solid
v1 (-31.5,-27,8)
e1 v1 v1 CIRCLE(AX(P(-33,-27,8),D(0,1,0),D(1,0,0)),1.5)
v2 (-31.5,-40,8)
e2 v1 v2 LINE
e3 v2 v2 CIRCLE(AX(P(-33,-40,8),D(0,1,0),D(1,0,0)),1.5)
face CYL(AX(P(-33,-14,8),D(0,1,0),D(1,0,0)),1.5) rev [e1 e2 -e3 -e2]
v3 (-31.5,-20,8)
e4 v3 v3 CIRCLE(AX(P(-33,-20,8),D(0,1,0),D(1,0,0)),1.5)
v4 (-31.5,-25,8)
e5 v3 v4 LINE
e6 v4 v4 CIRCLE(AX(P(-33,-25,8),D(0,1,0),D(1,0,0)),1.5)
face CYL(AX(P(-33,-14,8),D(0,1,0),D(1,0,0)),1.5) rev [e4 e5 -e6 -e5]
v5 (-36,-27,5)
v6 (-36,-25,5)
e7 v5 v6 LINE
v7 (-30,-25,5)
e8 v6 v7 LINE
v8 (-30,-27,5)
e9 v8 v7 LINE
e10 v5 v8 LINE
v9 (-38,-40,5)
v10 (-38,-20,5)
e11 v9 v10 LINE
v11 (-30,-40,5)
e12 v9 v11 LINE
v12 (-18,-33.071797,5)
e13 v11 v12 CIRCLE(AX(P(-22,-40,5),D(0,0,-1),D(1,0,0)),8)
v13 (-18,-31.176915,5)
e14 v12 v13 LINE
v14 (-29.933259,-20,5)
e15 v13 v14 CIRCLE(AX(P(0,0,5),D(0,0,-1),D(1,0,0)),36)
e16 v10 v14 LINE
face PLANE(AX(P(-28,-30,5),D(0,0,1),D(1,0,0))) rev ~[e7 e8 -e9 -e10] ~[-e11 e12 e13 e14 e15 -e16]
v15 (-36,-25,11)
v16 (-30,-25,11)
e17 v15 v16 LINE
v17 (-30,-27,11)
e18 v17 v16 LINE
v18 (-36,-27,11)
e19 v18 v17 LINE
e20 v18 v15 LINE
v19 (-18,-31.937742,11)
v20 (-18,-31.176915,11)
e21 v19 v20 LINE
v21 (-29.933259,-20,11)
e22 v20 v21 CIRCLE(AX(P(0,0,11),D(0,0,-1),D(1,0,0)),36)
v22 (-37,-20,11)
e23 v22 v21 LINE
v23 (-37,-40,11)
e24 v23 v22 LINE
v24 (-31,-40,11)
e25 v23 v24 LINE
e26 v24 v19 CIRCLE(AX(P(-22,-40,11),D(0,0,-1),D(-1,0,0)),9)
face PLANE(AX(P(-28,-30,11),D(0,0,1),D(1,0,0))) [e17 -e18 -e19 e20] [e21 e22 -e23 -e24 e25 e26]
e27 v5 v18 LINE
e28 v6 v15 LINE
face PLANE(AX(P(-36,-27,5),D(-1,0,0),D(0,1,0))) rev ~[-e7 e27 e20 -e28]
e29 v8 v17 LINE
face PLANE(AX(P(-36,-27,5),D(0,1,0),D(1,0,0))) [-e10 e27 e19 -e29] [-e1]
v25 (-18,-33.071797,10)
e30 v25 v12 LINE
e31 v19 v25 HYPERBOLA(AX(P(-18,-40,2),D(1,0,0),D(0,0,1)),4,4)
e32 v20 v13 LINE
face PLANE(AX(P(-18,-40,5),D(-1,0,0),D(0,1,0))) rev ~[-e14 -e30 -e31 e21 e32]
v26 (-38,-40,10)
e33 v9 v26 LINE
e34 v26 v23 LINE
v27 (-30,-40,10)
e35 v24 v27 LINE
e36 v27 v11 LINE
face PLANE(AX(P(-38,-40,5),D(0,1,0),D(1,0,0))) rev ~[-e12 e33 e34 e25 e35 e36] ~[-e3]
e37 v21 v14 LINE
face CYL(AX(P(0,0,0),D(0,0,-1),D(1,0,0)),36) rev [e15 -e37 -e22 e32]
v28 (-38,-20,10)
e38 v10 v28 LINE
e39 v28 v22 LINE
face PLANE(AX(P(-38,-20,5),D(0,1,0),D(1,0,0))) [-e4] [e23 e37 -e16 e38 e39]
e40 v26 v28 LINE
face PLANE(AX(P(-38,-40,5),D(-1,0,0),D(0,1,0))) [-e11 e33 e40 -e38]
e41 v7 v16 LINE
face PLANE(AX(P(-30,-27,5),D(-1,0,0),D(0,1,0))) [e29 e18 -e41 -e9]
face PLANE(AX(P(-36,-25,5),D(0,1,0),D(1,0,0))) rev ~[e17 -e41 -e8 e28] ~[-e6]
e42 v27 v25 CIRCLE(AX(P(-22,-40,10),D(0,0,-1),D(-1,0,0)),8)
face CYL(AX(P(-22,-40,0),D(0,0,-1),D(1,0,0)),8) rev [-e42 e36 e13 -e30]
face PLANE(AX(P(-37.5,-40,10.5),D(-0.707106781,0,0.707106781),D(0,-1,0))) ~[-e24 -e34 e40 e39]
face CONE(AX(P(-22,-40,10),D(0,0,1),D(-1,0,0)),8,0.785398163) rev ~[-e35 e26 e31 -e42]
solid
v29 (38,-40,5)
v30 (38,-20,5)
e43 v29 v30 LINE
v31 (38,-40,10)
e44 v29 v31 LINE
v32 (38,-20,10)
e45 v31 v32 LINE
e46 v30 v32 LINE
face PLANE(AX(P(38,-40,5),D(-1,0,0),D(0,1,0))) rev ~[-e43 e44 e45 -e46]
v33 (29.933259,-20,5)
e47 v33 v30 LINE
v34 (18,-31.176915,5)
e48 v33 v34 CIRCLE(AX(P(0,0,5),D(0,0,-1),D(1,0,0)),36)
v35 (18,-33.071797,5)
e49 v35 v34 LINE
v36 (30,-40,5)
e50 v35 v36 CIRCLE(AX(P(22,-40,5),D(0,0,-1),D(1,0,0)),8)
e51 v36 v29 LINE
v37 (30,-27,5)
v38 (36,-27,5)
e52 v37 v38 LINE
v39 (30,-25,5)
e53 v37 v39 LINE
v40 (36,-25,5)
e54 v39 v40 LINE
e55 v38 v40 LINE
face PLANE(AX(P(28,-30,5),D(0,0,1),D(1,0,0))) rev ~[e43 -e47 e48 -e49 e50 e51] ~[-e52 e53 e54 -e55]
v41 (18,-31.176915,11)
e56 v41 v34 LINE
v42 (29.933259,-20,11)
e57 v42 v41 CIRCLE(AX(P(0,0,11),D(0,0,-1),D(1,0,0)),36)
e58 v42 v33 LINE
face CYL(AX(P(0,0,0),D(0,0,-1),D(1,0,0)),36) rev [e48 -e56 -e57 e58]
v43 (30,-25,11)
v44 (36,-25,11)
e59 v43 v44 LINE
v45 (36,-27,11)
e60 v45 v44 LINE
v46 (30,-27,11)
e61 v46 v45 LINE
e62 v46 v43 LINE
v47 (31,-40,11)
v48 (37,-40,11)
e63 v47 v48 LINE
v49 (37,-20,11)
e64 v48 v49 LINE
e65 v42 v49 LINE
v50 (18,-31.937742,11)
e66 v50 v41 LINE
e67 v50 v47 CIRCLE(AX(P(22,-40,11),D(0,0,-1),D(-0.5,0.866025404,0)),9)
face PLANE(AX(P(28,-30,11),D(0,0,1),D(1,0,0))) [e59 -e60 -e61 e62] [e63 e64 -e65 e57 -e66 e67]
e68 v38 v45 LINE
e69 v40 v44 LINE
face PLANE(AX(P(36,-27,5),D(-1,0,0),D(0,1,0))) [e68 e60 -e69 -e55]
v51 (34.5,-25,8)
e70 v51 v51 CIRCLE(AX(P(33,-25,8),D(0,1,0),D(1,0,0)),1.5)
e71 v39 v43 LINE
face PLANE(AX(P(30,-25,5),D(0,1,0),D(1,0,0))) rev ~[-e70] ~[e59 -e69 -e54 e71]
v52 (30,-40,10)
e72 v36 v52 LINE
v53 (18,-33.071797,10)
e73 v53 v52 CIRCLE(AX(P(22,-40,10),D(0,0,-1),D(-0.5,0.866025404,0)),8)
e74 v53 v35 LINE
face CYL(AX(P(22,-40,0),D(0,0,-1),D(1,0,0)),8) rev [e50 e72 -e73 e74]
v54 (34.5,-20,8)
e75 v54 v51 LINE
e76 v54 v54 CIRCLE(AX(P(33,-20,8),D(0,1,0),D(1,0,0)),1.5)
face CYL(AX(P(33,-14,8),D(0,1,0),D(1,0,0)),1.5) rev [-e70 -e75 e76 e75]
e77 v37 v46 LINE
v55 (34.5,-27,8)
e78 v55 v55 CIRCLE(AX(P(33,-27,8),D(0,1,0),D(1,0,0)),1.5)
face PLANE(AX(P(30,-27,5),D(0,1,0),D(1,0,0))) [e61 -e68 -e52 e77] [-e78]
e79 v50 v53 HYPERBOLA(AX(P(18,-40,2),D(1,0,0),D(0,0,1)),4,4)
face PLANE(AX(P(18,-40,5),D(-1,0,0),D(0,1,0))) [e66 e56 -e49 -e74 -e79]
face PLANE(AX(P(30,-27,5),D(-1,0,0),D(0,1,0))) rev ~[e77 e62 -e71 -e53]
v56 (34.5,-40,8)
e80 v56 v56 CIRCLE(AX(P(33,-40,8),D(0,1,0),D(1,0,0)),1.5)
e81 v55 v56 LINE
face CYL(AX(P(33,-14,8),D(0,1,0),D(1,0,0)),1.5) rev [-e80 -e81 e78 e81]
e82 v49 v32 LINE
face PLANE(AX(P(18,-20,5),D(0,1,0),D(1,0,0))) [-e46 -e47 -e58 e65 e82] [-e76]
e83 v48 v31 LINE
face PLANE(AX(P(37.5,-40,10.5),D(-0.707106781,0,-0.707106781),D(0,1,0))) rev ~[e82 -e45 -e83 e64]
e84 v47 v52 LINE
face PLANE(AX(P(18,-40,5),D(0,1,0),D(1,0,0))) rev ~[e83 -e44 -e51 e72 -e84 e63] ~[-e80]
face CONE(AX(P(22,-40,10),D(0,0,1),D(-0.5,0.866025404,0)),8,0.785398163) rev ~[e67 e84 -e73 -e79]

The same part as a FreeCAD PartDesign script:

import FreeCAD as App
import Part
import Sketcher


def edges_at(feature, points):
    """Names of the edges that pass closest to the given points."""
    edges = feature.Shape.Edges
    near = lambda p: min(range(len(edges)), key=lambda i: edges[i].distToShape(Part.Vertex(*p))[0])
    return sorted({f"Edge{near(p) + 1}" for p in points})

doc = App.newDocument("Part")
params = doc.addObject("Spreadsheet::Sheet", "Params")
for row, (alias, value) in enumerate([
    ("sketch1_diameter", "3 mm"),
    ("pad1_length", "60 mm"),
    ("sketch2_diameter", "3 mm"),
    ("pad2_length", "60 mm"),
    ("sketch3_width", "6 mm"),
    ("sketch3_height", "2 mm"),
    ("pad3_length", "6 mm"),
    ("sketch4_width", "6 mm"),
    ("sketch4_height", "2 mm"),
    ("pad4_length", "6 mm"),
    ("sketch5_diameter", "72 mm"),
    ("pad5_length", "16 mm"),
    ("sketch6_diameter", "16 mm"),
    ("pad6_length", "16 mm"),
    ("sketch7_diameter", "16 mm"),
    ("pad7_length", "16 mm"),
    ("sketch8_width", "20 mm"),
    ("pad8_length", "6 mm"),
    ("sketch9_width", "20 mm"),
    ("pad9_length", "6 mm"),
    ("chamfer_size", "1 mm"),
    ("chamfer2_size", "1 mm"),
    ("chamfer3_size", "1 mm"),
    ("chamfer4_size", "1 mm"),
], start=1):
    params.set(f"A{row}", alias)
    params.set(f"B{row}", "=" + value)
    params.setAlias(f"B{row}", alias)

body = doc.addObject("PartDesign::Body", "Body")

# Sketch on XZ plane
sketch1 = body.newObject("Sketcher::SketchObject", "Sketch")
sketch1.AttachmentSupport = (doc.getObject("XZ_Plane"), [""])
sketch1.MapMode = "FlatFace"
sketch1.AttachmentOffset = App.Placement(App.Vector(0, 0, 10), App.Rotation())
sketch1.addGeometry(Part.Circle(App.Vector(33, 8, 0), App.Vector(0, 0, 1), 1.5), False)
sketch1.addConstraint([
    Sketcher.Constraint("Diameter", 0, 3.0),
    Sketcher.Constraint("DistanceX", -1, 1, 0, 3, 33.0),
    Sketcher.Constraint("DistanceY", -1, 1, 0, 3, 8.0),
])
sketch1.setExpression("Constraints[0]", "Params.sketch1_diameter")
pad1 = body.newObject("PartDesign::Pad", "Pad")
pad1.Profile = sketch1
pad1.setExpression("Length", "Params.pad1_length")
body2 = doc.addObject("PartDesign::Body", "Body001")
body2.AllowCompound = True

# Sketch on XZ plane
sketch2 = body2.newObject("Sketcher::SketchObject", "Sketch001")
sketch2.AttachmentSupport = (doc.getObject("XZ_Plane001"), [""])
sketch2.MapMode = "FlatFace"
sketch2.AttachmentOffset = App.Placement(App.Vector(0, 0, 10), App.Rotation())
sketch2.addGeometry(Part.Circle(App.Vector(-33, 8, 0), App.Vector(0, 0, 1), 1.5), False)
sketch2.addConstraint([
    Sketcher.Constraint("Diameter", 0, 3.0),
    Sketcher.Constraint("DistanceX", 0, 3, -1, 1, 33.0),
    Sketcher.Constraint("DistanceY", -1, 1, 0, 3, 8.0),
])
sketch2.setExpression("Constraints[0]", "Params.sketch2_diameter")
pad2 = body2.newObject("PartDesign::Pad", "Pad001")
pad2.Profile = sketch2
pad2.setExpression("Length", "Params.pad2_length")
doc.recompute()

boolean = body2.newObject("PartDesign::Boolean", "Boolean")
boolean.Type = "Fuse"
boolean.addObjects([body])
body3 = doc.addObject("PartDesign::Body", "Body002")
body3.AllowCompound = True
doc.recompute()

body2.Placement = App.Placement(App.Vector(0, -4, 0), App.Rotation(App.Vector(0, 0, 1), 0))
boolean2 = body3.newObject("PartDesign::Boolean", "Boolean001")
boolean2.Type = "Fuse"
boolean2.addObjects([body2])
body4 = doc.addObject("PartDesign::Body", "Body003")

# Sketch on XY plane
sketch3 = body4.newObject("Sketcher::SketchObject", "Sketch002")
sketch3.AttachmentSupport = (doc.getObject("XY_Plane003"), [""])
sketch3.MapMode = "FlatFace"
sketch3.AttachmentOffset = App.Placement(App.Vector(0, 0, 5), App.Rotation())
sketch3.addGeometry([
    Part.LineSegment(App.Vector(-36, -25, 0), App.Vector(-36, -27, 0)),
    Part.LineSegment(App.Vector(-36, -27, 0), App.Vector(-30, -27, 0)),
    Part.LineSegment(App.Vector(-30, -27, 0), App.Vector(-30, -25, 0)),
    Part.LineSegment(App.Vector(-30, -25, 0), App.Vector(-36, -25, 0)),
], False)
sketch3.addConstraint([
    Sketcher.Constraint("Coincident", 0, 2, 1, 1),
    Sketcher.Constraint("Coincident", 1, 2, 2, 1),
    Sketcher.Constraint("Coincident", 2, 2, 3, 1),
    Sketcher.Constraint("Coincident", 3, 2, 0, 1),
    Sketcher.Constraint("Vertical", 0),
    Sketcher.Constraint("Horizontal", 1),
    Sketcher.Constraint("Vertical", 2),
    Sketcher.Constraint("Horizontal", 3),
    Sketcher.Constraint("DistanceX", 1, 1, 1, 2, 6.0),
    Sketcher.Constraint("DistanceY", 0, 2, 0, 1, 2.0),
    Sketcher.Constraint("DistanceX", 0, 2, -1, 1, 36.0),
    Sketcher.Constraint("DistanceY", 0, 2, -1, 1, 27.0),
])
sketch3.setExpression("Constraints[8]", "Params.sketch3_width")
sketch3.setExpression("Constraints[9]", "Params.sketch3_height")
pad3 = body4.newObject("PartDesign::Pad", "Pad002")
pad3.Profile = sketch3
pad3.setExpression("Length", "Params.pad3_length")
body5 = doc.addObject("PartDesign::Body", "Body004")
body5.AllowCompound = True

# Sketch on XY plane
sketch4 = body5.newObject("Sketcher::SketchObject", "Sketch003")
sketch4.AttachmentSupport = (doc.getObject("XY_Plane004"), [""])
sketch4.MapMode = "FlatFace"
sketch4.AttachmentOffset = App.Placement(App.Vector(0, 0, 5), App.Rotation())
sketch4.addGeometry([
    Part.LineSegment(App.Vector(30, -25, 0), App.Vector(30, -27, 0)),
    Part.LineSegment(App.Vector(30, -27, 0), App.Vector(36, -27, 0)),
    Part.LineSegment(App.Vector(36, -27, 0), App.Vector(36, -25, 0)),
    Part.LineSegment(App.Vector(36, -25, 0), App.Vector(30, -25, 0)),
], False)
sketch4.addConstraint([
    Sketcher.Constraint("Coincident", 0, 2, 1, 1),
    Sketcher.Constraint("Coincident", 1, 2, 2, 1),
    Sketcher.Constraint("Coincident", 2, 2, 3, 1),
    Sketcher.Constraint("Coincident", 3, 2, 0, 1),
    Sketcher.Constraint("Vertical", 0),
    Sketcher.Constraint("Horizontal", 1),
    Sketcher.Constraint("Vertical", 2),
    Sketcher.Constraint("Horizontal", 3),
    Sketcher.Constraint("DistanceX", 1, 1, 1, 2, 6.0),
    Sketcher.Constraint("DistanceY", 0, 2, 0, 1, 2.0),
    Sketcher.Constraint("DistanceX", -1, 1, 0, 2, 30.0),
    Sketcher.Constraint("DistanceY", 0, 2, -1, 1, 27.0),
])
sketch4.setExpression("Constraints[8]", "Params.sketch4_width")
sketch4.setExpression("Constraints[9]", "Params.sketch4_height")
pad4 = body5.newObject("PartDesign::Pad", "Pad003")
pad4.Profile = sketch4
pad4.setExpression("Length", "Params.pad4_length")
doc.recompute()

boolean3 = body5.newObject("PartDesign::Boolean", "Boolean002")
boolean3.Type = "Fuse"
boolean3.addObjects([body4])
body6 = doc.addObject("PartDesign::Body", "Body005")

# Sketch on XY plane
sketch5 = body6.newObject("Sketcher::SketchObject", "Sketch004")
sketch5.AttachmentSupport = (doc.getObject("XY_Plane005"), [""])
sketch5.MapMode = "FlatFace"
sketch5.addGeometry(Part.Circle(App.Vector(0, 0, 0), App.Vector(0, 0, 1), 36), False)
sketch5.addConstraint([
    Sketcher.Constraint("Coincident", 0, 3, -1, 1),
    Sketcher.Constraint("Diameter", 0, 72.0),
])
sketch5.setExpression("Constraints[1]", "Params.sketch5_diameter")
pad5 = body6.newObject("PartDesign::Pad", "Pad004")
pad5.Profile = sketch5
pad5.setExpression("Length", "Params.pad5_length")
body7 = doc.addObject("PartDesign::Body", "Body006")

# Sketch on XY plane
sketch6 = body7.newObject("Sketcher::SketchObject", "Sketch005")
sketch6.AttachmentSupport = (doc.getObject("XY_Plane006"), [""])
sketch6.MapMode = "FlatFace"
sketch6.addGeometry(Part.Circle(App.Vector(-22, -40, 0), App.Vector(0, 0, 1), 8), False)
sketch6.addConstraint([
    Sketcher.Constraint("Diameter", 0, 16.0),
    Sketcher.Constraint("DistanceX", 0, 3, -1, 1, 22.0),
    Sketcher.Constraint("DistanceY", 0, 3, -1, 1, 40.0),
])
sketch6.setExpression("Constraints[0]", "Params.sketch6_diameter")
pad6 = body7.newObject("PartDesign::Pad", "Pad005")
pad6.Profile = sketch6
pad6.setExpression("Length", "Params.pad6_length")
body8 = doc.addObject("PartDesign::Body", "Body007")
body8.AllowCompound = True

# Sketch on XY plane
sketch7 = body8.newObject("Sketcher::SketchObject", "Sketch006")
sketch7.AttachmentSupport = (doc.getObject("XY_Plane007"), [""])
sketch7.MapMode = "FlatFace"
sketch7.addGeometry(Part.Circle(App.Vector(22, -40, 0), App.Vector(0, 0, 1), 8), False)
sketch7.addConstraint([
    Sketcher.Constraint("Diameter", 0, 16.0),
    Sketcher.Constraint("DistanceX", -1, 1, 0, 3, 22.0),
    Sketcher.Constraint("DistanceY", 0, 3, -1, 1, 40.0),
])
sketch7.setExpression("Constraints[0]", "Params.sketch7_diameter")
pad7 = body8.newObject("PartDesign::Pad", "Pad006")
pad7.Profile = sketch7
pad7.setExpression("Length", "Params.pad7_length")
doc.recompute()

boolean4 = body8.newObject("PartDesign::Boolean", "Boolean003")
boolean4.Type = "Fuse"
boolean4.addObjects([body7])
body9 = doc.addObject("PartDesign::Body", "Body008")

# Sketch on XY plane
sketch8 = body9.newObject("Sketcher::SketchObject", "Sketch007")
sketch8.AttachmentSupport = (doc.getObject("XY_Plane008"), [""])
sketch8.MapMode = "FlatFace"
sketch8.AttachmentOffset = App.Placement(App.Vector(0, 0, 5), App.Rotation())
sketch8.addGeometry([
    Part.LineSegment(App.Vector(-38, -20, 0), App.Vector(-38, -40, 0)),
    Part.LineSegment(App.Vector(-38, -40, 0), App.Vector(-18, -40, 0)),
    Part.LineSegment(App.Vector(-18, -40, 0), App.Vector(-18, -20, 0)),
    Part.LineSegment(App.Vector(-18, -20, 0), App.Vector(-38, -20, 0)),
], False)
sketch8.addConstraint([
    Sketcher.Constraint("Coincident", 0, 2, 1, 1),
    Sketcher.Constraint("Coincident", 1, 2, 2, 1),
    Sketcher.Constraint("Coincident", 2, 2, 3, 1),
    Sketcher.Constraint("Coincident", 3, 2, 0, 1),
    Sketcher.Constraint("Vertical", 0),
    Sketcher.Constraint("Horizontal", 1),
    Sketcher.Constraint("Vertical", 2),
    Sketcher.Constraint("Horizontal", 3),
    Sketcher.Constraint("Equal", 3, 0),
    Sketcher.Constraint("DistanceX", 1, 1, 1, 2, 20.0),
    Sketcher.Constraint("DistanceX", 0, 2, -1, 1, 38.0),
    Sketcher.Constraint("DistanceY", 0, 2, -1, 1, 40.0),
])
sketch8.setExpression("Constraints[9]", "Params.sketch8_width")
pad8 = body9.newObject("PartDesign::Pad", "Pad007")
pad8.Profile = sketch8
pad8.setExpression("Length", "Params.pad8_length")
body10 = doc.addObject("PartDesign::Body", "Body009")
body10.AllowCompound = True

# Sketch on XY plane
sketch9 = body10.newObject("Sketcher::SketchObject", "Sketch008")
sketch9.AttachmentSupport = (doc.getObject("XY_Plane009"), [""])
sketch9.MapMode = "FlatFace"
sketch9.AttachmentOffset = App.Placement(App.Vector(0, 0, 5), App.Rotation())
sketch9.addGeometry([
    Part.LineSegment(App.Vector(18, -20, 0), App.Vector(18, -40, 0)),
    Part.LineSegment(App.Vector(18, -40, 0), App.Vector(38, -40, 0)),
    Part.LineSegment(App.Vector(38, -40, 0), App.Vector(38, -20, 0)),
    Part.LineSegment(App.Vector(38, -20, 0), App.Vector(18, -20, 0)),
], False)
sketch9.addConstraint([
    Sketcher.Constraint("Coincident", 0, 2, 1, 1),
    Sketcher.Constraint("Coincident", 1, 2, 2, 1),
    Sketcher.Constraint("Coincident", 2, 2, 3, 1),
    Sketcher.Constraint("Coincident", 3, 2, 0, 1),
    Sketcher.Constraint("Vertical", 0),
    Sketcher.Constraint("Horizontal", 1),
    Sketcher.Constraint("Vertical", 2),
    Sketcher.Constraint("Horizontal", 3),
    Sketcher.Constraint("Equal", 3, 0),
    Sketcher.Constraint("DistanceX", 1, 1, 1, 2, 20.0),
    Sketcher.Constraint("DistanceX", -1, 1, 0, 2, 18.0),
    Sketcher.Constraint("DistanceY", 0, 2, -1, 1, 40.0),
])
sketch9.setExpression("Constraints[9]", "Params.sketch9_width")
pad9 = body10.newObject("PartDesign::Pad", "Pad008")
pad9.Profile = sketch9
pad9.setExpression("Length", "Params.pad9_length")
doc.recompute()

boolean5 = body10.newObject("PartDesign::Boolean", "Boolean004")
boolean5.Type = "Fuse"
boolean5.addObjects([body9])
doc.recompute()

boolean6 = body10.newObject("PartDesign::Boolean", "Boolean005")
boolean6.Type = "Cut"
boolean6.addObjects([body8])
doc.recompute()

chamfer = body10.newObject("PartDesign::Chamfer", "Chamfer")
chamfer.Base = (boolean6, edges_at(boolean6, [(26, -33.072, 11)]))
chamfer.setExpression("Size", "Params.chamfer_size")
doc.recompute()

chamfer2 = body10.newObject("PartDesign::Chamfer", "Chamfer001")
chamfer2.Base = (chamfer, edges_at(chamfer, [(38, -30, 11)]))
chamfer2.setExpression("Size", "Params.chamfer2_size")
doc.recompute()

chamfer3 = body10.newObject("PartDesign::Chamfer", "Chamfer002")
chamfer3.Base = (chamfer2, edges_at(chamfer2, [(-38, -30, 11)]))
chamfer3.setExpression("Size", "Params.chamfer3_size")
doc.recompute()

chamfer4 = body10.newObject("PartDesign::Chamfer", "Chamfer003")
chamfer4.Base = (chamfer3, edges_at(chamfer3, [(-26, -33.072, 11)]))
chamfer4.setExpression("Size", "Params.chamfer4_size")
doc.recompute()

boolean7 = body10.newObject("PartDesign::Boolean", "Boolean006")
boolean7.Type = "Cut"
boolean7.addObjects([body6])
doc.recompute()

boolean8 = body10.newObject("PartDesign::Boolean", "Boolean007")
boolean8.Type = "Cut"
boolean8.addObjects([body5])
doc.recompute()

boolean9 = body10.newObject("PartDesign::Boolean", "Boolean008")
boolean9.Type = "Cut"
boolean9.addObjects([body3])

doc.recompute()
